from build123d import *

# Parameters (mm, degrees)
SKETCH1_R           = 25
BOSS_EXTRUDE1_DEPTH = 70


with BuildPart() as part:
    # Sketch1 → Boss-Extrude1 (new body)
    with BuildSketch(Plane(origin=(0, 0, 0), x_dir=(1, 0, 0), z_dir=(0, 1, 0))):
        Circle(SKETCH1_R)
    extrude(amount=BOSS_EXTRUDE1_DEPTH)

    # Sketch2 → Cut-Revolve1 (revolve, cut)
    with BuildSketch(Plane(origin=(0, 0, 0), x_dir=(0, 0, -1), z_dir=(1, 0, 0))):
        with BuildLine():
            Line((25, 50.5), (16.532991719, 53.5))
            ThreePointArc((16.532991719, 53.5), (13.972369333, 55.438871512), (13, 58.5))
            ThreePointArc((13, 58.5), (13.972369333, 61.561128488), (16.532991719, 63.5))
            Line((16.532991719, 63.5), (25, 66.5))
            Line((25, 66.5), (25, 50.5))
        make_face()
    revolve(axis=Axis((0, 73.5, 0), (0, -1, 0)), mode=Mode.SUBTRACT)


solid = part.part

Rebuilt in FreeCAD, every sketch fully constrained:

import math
import FreeCAD as App
import Part
import Sketcher

doc = App.newDocument("Part")
body = doc.addObject("PartDesign::Body", "Body")

# Sketch on XZ plane
sketch1 = doc.addObject("Sketcher::SketchObject", "Sketch")
body.addObject(sketch1)
sketch1.AttachmentSupport = (doc.XZ_Plane, [""])
sketch1.MapMode = "FlatFace"
sketch1.addGeometry(Part.Circle(App.Vector(0, 0, 0), App.Vector(0, 0, 1), 25), False)
sketch1.addConstraint([
    Sketcher.Constraint("Coincident", 0, 3, -1, 1),
    Sketcher.Constraint("Diameter", 0, 50.0),
])
pad1 = doc.addObject("PartDesign::Pad", "Pad")
body.addObject(pad1)
pad1.Profile = sketch1
pad1.Length = 70
pad1.Reversed = True

# Sketch on YZ plane
sketch2 = doc.addObject("Sketcher::SketchObject", "Sketch001")
body.addObject(sketch2)
sketch2.AttachmentSupport = (doc.YZ_Plane, [""])
sketch2.MapMode = "FlatFace"
sketch2.addGeometry([
    Part.LineSegment(App.Vector(54, -17, 0), App.Vector(50, -25, 0)),  # 0
    Part.LineSegment(App.Vector(50, -25, 0), App.Vector(66, -25, 0)),  # 1
    Part.LineSegment(App.Vector(66, -25, 0), App.Vector(64, -17, 0)),  # 2
    Part.ArcOfCircle(Part.Circle(App.Vector(58, -18, 0), App.Vector(0, 0, 1), 5), math.radians(20), math.radians(90)),  # 3
    Part.ArcOfCircle(Part.Circle(App.Vector(58, -18, 0), App.Vector(0, 0, 1), 5), math.radians(90), math.radians(160)),  # 4
], False)
sketch2.addConstraint([
    Sketcher.Constraint("Coincident", 0, 2, 1, 1),
    Sketcher.Constraint("Coincident", 1, 2, 2, 1),
    Sketcher.Constraint("Tangent", 2, 2, 3, 1),
    Sketcher.Constraint("Tangent", 3, 2, 4, 1),
    Sketcher.Constraint("Tangent", 4, 2, 0, 1),
    Sketcher.Constraint("Horizontal", 1),
    Sketcher.Constraint("Equal", 3, 4),
    Sketcher.Constraint("Horizontal", 2, 2, 4, 2),
    Sketcher.Constraint("Vertical", 4, 3, 3, 2),
    Sketcher.Constraint("DistanceX", 1, 1, 1, 2, 16.0),
    Sketcher.Constraint("DistanceY", 0, 2, -1, 1, 25.0),
    Sketcher.Constraint("DistanceY", 3, 2, -1, 1, 13.0),
    Sketcher.Constraint("DistanceX", 3, 3, 2, 2, 5.0),
    Sketcher.Constraint("DistanceX", -1, 1, 3, 3, 58.5),
])
groove = doc.addObject("PartDesign::Groove", "Groove")
body.addObject(groove)
groove.Profile = sketch2
groove.ReferenceAxis = (sketch2, ["H_Axis"])
groove.Angle = 360

doc.recompute()
